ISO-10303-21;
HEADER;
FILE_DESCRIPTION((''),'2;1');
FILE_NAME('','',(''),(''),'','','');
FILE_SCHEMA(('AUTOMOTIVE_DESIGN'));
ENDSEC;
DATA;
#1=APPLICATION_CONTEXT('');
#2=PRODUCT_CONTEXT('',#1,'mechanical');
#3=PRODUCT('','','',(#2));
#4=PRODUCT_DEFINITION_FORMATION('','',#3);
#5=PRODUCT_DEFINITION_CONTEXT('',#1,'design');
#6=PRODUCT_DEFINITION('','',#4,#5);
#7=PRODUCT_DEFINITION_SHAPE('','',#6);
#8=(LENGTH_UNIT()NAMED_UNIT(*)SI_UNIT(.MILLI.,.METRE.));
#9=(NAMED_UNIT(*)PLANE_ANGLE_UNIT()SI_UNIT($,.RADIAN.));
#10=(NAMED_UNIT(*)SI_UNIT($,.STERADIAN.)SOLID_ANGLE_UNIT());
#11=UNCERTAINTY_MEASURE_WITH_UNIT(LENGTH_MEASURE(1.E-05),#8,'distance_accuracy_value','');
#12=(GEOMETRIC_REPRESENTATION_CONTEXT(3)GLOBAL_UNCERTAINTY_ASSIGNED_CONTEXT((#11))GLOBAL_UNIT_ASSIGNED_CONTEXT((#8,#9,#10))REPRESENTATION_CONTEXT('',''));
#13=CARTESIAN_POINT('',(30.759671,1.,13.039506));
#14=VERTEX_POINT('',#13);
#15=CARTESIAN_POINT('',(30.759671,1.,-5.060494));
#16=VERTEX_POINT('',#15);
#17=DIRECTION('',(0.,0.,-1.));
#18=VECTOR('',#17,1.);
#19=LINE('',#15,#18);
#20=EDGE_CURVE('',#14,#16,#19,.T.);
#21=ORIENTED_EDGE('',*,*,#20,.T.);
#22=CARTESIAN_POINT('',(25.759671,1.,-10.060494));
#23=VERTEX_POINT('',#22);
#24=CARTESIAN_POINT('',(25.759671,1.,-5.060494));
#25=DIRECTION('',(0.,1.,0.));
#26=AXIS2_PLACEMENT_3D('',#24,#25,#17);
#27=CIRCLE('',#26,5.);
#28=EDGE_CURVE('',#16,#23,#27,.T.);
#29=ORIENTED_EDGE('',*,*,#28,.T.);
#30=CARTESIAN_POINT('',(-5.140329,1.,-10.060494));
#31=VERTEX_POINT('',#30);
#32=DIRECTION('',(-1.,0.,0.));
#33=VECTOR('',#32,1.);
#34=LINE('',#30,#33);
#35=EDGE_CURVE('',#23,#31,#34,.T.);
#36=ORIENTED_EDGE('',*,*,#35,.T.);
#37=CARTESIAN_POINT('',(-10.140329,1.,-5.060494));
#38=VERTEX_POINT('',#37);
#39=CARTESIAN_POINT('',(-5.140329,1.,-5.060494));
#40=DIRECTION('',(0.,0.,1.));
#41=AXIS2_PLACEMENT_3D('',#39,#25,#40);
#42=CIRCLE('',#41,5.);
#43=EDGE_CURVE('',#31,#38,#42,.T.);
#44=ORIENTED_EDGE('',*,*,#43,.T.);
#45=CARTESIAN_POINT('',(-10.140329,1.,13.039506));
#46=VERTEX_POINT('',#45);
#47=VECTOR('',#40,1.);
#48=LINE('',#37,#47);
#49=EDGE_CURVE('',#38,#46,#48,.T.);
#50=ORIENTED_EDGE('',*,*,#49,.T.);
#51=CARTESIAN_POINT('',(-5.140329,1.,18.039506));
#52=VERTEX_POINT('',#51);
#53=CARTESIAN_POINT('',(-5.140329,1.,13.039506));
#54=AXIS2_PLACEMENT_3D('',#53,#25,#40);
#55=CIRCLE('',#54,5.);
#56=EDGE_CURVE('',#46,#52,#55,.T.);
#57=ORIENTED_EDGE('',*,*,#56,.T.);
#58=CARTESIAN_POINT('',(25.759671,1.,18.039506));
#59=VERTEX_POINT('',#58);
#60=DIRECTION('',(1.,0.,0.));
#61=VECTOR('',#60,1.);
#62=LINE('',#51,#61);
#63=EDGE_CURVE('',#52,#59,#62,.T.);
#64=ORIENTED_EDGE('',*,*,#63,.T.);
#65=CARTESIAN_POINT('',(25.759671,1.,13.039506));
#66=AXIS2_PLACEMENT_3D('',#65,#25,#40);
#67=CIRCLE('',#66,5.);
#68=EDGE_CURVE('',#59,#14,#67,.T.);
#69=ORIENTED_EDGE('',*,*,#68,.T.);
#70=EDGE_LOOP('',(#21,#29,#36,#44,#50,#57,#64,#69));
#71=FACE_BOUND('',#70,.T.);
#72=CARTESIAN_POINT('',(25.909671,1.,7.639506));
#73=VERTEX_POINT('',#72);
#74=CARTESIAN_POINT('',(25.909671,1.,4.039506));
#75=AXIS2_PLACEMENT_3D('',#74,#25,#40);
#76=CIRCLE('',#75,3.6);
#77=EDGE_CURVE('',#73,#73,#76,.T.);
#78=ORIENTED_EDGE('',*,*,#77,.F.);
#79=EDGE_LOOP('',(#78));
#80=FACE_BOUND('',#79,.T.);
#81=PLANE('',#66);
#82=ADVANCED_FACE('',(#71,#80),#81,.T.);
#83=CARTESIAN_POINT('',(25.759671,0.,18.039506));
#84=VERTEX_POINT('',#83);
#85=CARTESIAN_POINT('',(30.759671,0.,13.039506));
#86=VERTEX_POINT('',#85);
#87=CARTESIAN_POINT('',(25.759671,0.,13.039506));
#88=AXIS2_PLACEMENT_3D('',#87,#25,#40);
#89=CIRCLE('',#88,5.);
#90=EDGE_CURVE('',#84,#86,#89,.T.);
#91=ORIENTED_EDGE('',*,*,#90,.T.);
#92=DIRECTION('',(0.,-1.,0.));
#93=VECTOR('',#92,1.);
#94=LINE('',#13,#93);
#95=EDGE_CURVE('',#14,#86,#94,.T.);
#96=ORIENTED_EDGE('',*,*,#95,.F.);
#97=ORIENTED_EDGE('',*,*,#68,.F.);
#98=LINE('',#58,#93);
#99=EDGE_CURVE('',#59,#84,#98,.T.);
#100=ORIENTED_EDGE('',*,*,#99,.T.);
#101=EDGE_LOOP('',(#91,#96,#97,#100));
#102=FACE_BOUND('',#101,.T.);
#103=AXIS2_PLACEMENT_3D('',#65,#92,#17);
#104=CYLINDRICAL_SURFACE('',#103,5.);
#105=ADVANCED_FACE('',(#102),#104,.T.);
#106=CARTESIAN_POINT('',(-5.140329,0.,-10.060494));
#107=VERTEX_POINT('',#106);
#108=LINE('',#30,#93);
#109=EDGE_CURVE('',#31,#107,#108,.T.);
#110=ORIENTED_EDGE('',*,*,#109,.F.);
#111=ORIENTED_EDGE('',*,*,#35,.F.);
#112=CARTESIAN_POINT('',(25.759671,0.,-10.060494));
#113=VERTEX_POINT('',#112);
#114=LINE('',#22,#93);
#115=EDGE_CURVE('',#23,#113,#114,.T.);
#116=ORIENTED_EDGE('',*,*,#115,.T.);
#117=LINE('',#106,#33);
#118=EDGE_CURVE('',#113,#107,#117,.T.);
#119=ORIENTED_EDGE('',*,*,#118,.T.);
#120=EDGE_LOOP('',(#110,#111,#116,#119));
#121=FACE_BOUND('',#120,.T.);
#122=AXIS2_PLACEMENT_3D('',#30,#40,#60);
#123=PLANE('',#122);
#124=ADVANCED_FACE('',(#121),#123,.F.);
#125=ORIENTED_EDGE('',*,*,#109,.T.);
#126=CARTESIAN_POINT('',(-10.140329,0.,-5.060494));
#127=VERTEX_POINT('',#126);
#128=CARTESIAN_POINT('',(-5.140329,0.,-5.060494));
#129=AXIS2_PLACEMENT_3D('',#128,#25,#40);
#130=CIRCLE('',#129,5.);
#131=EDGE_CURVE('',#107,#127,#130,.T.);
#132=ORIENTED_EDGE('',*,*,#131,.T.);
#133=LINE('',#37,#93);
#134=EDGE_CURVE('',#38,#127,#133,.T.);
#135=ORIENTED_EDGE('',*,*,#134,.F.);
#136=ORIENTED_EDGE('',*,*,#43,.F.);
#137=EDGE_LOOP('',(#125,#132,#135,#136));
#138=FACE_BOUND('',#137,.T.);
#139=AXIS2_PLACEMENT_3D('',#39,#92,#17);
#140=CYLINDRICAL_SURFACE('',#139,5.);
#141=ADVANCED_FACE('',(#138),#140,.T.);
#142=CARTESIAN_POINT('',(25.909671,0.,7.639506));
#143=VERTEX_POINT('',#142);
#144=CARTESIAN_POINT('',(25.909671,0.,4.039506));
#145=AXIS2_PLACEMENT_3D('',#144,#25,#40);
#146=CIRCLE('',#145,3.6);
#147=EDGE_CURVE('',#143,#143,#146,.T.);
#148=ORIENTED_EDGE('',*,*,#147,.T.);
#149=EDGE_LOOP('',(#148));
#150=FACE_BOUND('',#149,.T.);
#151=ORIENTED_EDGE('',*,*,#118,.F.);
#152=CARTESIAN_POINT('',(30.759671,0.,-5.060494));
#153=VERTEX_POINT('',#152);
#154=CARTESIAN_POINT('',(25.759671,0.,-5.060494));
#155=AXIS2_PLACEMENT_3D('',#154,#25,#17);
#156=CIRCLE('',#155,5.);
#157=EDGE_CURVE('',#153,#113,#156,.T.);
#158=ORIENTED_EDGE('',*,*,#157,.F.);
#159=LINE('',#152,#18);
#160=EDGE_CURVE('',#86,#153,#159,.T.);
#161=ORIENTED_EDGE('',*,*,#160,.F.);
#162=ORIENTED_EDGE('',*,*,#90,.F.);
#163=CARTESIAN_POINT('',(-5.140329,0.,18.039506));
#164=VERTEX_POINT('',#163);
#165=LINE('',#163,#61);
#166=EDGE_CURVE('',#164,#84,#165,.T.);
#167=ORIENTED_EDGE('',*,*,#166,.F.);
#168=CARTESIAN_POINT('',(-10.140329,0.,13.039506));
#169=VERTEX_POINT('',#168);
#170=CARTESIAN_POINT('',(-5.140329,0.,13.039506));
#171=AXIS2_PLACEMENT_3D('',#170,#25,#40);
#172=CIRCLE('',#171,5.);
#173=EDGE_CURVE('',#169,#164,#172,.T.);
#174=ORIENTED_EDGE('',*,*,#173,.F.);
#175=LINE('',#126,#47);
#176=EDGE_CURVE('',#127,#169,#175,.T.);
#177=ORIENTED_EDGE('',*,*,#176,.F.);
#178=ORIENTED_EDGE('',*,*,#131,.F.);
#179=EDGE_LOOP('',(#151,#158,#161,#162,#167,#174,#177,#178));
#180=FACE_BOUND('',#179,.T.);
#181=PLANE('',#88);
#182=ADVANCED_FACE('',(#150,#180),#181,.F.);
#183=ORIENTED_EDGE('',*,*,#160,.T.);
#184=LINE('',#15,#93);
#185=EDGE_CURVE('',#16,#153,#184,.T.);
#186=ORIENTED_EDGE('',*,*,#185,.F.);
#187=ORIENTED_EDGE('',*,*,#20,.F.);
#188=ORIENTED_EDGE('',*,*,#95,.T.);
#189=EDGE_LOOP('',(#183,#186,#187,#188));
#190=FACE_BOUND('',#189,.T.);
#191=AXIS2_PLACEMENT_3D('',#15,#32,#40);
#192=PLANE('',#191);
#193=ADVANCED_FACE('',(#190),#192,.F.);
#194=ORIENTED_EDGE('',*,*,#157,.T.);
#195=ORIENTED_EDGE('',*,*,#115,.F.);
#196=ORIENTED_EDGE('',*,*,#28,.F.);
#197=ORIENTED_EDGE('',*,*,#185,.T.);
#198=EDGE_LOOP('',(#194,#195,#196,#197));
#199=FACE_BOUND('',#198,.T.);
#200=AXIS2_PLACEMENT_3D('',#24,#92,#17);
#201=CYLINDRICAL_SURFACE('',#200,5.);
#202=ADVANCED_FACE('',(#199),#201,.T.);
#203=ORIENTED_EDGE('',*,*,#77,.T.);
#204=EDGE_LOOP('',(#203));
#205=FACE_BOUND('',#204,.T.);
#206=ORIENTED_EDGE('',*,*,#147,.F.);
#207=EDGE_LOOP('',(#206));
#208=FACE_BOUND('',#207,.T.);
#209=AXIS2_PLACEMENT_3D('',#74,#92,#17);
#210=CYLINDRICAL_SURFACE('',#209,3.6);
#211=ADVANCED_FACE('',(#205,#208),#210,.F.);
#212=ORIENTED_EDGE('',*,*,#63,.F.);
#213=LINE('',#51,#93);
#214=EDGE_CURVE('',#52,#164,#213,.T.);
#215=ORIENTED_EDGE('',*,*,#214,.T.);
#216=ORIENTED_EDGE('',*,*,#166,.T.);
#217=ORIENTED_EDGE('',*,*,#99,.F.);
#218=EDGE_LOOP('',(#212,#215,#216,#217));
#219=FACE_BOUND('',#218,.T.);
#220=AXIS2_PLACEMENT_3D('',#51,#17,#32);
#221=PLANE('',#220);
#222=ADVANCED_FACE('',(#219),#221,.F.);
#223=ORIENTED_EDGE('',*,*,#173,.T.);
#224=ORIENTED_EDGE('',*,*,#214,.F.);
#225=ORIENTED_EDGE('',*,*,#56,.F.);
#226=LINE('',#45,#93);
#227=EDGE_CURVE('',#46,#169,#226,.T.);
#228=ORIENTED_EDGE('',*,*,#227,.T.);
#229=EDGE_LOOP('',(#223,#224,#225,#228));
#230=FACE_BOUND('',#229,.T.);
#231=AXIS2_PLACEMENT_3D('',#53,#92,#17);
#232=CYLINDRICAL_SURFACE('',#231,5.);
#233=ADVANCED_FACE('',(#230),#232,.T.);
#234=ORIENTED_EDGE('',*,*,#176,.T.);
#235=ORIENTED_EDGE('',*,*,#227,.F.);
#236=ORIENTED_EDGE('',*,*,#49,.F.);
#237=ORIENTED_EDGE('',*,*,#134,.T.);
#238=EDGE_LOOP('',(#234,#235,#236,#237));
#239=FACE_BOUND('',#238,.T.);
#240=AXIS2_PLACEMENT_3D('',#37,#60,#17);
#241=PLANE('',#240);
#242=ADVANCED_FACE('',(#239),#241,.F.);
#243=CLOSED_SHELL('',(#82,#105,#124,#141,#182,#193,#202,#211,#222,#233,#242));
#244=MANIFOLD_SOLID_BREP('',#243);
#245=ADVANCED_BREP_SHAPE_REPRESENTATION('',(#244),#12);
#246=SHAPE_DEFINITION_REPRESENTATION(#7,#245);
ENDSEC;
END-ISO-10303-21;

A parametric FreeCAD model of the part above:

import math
import FreeCAD as App
import Part
import Sketcher

doc = App.newDocument("Part")
body = doc.addObject("PartDesign::Body", "Body")

# Sketch on XZ plane
sketch1 = doc.addObject("Sketcher::SketchObject", "Sketch")
body.addObject(sketch1)
sketch1.AttachmentSupport = (doc.XZ_Plane, [""])
sketch1.MapMode = "FlatFace"
sketch1.addGeometry([
    Part.LineSegment(App.Vector(25.8, -10.1, 0), App.Vector(-5.1, -10.1, 0)),  # 0
    Part.ArcOfCircle(Part.Circle(App.Vector(-5.1, -5.1, 0), App.Vector(0, 0, 1), 5), math.radians(180), math.radians(270)),  # 1
    Part.LineSegment(App.Vector(-10.1, -5.1, 0), App.Vector(-10.1, 13, 0)),  # 2
    Part.ArcOfCircle(Part.Circle(App.Vector(-5.1, 13, 0), App.Vector(0, 0, 1), 5), math.radians(90), math.radians(180)),  # 3
    Part.LineSegment(App.Vector(-5.1, 18, 0), App.Vector(25.8, 18, 0)),  # 4
    Part.ArcOfCircle(Part.Circle(App.Vector(25.8, 13, 0), App.Vector(0, 0, 1), 5), math.radians(0), math.radians(90)),  # 5
    Part.LineSegment(App.Vector(30.8, 13, 0), App.Vector(30.8, -5.1, 0)),  # 6
    Part.ArcOfCircle(Part.Circle(App.Vector(25.8, -5.1, 0), App.Vector(0, 0, 1), 5), math.radians(-90), math.radians(0)),  # 7
    Part.Circle(App.Vector(25.9, 4, 0), App.Vector(0, 0, 1), 3.6),  # 8
], False)
sketch1.addConstraint([
    Sketcher.Constraint("Tangent", 0, 2, 1, 2),
    Sketcher.Constraint("Tangent", 1, 1, 2, 1),
    Sketcher.Constraint("Tangent", 2, 2, 3, 2),
    Sketcher.Constraint("Tangent", 3, 1, 4, 1),
    Sketcher.Constraint("Tangent", 4, 2, 5, 2),
    Sketcher.Constraint("Tangent", 5, 1, 6, 1),
    Sketcher.Constraint("Tangent", 6, 2, 7, 2),
    Sketcher.Constraint("Tangent", 7, 1, 0, 1),
    Sketcher.Constraint("Horizontal", 0),
    Sketcher.Constraint("Vertical", 2),
    Sketcher.Constraint("Horizontal", 4),
    Sketcher.Constraint("Vertical", 6),
    Sketcher.Constraint("Equal", 1, 3),
    Sketcher.Constraint("Equal", 3, 5),
    Sketcher.Constraint("Equal", 5, 7),
    Sketcher.Constraint("Radius", 1, 5.0),
    Sketcher.Constraint("Diameter", 8, 7.2),
    Sketcher.Constraint("DistanceX", 0, 2, 0, 1, 30.9),
    Sketcher.Constraint("DistanceY", 2, 1, 2, 2, 18.1),
    Sketcher.Constraint("DistanceY", 8, 3, 5, 3, 9.0),
    Sketcher.Constraint("DistanceX", 5, 3, 8, 3, 0.15),
    Sketcher.Constraint("DistanceX", 1, 3, -1, 1, 5.140329),
    Sketcher.Constraint("DistanceY", 1, 3, -1, 1, 5.060494),
])
pad1 = doc.addObject("PartDesign::Pad", "Pad")
body.addObject(pad1)
pad1.Profile = sketch1
pad1.Length = 1
pad1.Reversed = True

doc.recompute()
